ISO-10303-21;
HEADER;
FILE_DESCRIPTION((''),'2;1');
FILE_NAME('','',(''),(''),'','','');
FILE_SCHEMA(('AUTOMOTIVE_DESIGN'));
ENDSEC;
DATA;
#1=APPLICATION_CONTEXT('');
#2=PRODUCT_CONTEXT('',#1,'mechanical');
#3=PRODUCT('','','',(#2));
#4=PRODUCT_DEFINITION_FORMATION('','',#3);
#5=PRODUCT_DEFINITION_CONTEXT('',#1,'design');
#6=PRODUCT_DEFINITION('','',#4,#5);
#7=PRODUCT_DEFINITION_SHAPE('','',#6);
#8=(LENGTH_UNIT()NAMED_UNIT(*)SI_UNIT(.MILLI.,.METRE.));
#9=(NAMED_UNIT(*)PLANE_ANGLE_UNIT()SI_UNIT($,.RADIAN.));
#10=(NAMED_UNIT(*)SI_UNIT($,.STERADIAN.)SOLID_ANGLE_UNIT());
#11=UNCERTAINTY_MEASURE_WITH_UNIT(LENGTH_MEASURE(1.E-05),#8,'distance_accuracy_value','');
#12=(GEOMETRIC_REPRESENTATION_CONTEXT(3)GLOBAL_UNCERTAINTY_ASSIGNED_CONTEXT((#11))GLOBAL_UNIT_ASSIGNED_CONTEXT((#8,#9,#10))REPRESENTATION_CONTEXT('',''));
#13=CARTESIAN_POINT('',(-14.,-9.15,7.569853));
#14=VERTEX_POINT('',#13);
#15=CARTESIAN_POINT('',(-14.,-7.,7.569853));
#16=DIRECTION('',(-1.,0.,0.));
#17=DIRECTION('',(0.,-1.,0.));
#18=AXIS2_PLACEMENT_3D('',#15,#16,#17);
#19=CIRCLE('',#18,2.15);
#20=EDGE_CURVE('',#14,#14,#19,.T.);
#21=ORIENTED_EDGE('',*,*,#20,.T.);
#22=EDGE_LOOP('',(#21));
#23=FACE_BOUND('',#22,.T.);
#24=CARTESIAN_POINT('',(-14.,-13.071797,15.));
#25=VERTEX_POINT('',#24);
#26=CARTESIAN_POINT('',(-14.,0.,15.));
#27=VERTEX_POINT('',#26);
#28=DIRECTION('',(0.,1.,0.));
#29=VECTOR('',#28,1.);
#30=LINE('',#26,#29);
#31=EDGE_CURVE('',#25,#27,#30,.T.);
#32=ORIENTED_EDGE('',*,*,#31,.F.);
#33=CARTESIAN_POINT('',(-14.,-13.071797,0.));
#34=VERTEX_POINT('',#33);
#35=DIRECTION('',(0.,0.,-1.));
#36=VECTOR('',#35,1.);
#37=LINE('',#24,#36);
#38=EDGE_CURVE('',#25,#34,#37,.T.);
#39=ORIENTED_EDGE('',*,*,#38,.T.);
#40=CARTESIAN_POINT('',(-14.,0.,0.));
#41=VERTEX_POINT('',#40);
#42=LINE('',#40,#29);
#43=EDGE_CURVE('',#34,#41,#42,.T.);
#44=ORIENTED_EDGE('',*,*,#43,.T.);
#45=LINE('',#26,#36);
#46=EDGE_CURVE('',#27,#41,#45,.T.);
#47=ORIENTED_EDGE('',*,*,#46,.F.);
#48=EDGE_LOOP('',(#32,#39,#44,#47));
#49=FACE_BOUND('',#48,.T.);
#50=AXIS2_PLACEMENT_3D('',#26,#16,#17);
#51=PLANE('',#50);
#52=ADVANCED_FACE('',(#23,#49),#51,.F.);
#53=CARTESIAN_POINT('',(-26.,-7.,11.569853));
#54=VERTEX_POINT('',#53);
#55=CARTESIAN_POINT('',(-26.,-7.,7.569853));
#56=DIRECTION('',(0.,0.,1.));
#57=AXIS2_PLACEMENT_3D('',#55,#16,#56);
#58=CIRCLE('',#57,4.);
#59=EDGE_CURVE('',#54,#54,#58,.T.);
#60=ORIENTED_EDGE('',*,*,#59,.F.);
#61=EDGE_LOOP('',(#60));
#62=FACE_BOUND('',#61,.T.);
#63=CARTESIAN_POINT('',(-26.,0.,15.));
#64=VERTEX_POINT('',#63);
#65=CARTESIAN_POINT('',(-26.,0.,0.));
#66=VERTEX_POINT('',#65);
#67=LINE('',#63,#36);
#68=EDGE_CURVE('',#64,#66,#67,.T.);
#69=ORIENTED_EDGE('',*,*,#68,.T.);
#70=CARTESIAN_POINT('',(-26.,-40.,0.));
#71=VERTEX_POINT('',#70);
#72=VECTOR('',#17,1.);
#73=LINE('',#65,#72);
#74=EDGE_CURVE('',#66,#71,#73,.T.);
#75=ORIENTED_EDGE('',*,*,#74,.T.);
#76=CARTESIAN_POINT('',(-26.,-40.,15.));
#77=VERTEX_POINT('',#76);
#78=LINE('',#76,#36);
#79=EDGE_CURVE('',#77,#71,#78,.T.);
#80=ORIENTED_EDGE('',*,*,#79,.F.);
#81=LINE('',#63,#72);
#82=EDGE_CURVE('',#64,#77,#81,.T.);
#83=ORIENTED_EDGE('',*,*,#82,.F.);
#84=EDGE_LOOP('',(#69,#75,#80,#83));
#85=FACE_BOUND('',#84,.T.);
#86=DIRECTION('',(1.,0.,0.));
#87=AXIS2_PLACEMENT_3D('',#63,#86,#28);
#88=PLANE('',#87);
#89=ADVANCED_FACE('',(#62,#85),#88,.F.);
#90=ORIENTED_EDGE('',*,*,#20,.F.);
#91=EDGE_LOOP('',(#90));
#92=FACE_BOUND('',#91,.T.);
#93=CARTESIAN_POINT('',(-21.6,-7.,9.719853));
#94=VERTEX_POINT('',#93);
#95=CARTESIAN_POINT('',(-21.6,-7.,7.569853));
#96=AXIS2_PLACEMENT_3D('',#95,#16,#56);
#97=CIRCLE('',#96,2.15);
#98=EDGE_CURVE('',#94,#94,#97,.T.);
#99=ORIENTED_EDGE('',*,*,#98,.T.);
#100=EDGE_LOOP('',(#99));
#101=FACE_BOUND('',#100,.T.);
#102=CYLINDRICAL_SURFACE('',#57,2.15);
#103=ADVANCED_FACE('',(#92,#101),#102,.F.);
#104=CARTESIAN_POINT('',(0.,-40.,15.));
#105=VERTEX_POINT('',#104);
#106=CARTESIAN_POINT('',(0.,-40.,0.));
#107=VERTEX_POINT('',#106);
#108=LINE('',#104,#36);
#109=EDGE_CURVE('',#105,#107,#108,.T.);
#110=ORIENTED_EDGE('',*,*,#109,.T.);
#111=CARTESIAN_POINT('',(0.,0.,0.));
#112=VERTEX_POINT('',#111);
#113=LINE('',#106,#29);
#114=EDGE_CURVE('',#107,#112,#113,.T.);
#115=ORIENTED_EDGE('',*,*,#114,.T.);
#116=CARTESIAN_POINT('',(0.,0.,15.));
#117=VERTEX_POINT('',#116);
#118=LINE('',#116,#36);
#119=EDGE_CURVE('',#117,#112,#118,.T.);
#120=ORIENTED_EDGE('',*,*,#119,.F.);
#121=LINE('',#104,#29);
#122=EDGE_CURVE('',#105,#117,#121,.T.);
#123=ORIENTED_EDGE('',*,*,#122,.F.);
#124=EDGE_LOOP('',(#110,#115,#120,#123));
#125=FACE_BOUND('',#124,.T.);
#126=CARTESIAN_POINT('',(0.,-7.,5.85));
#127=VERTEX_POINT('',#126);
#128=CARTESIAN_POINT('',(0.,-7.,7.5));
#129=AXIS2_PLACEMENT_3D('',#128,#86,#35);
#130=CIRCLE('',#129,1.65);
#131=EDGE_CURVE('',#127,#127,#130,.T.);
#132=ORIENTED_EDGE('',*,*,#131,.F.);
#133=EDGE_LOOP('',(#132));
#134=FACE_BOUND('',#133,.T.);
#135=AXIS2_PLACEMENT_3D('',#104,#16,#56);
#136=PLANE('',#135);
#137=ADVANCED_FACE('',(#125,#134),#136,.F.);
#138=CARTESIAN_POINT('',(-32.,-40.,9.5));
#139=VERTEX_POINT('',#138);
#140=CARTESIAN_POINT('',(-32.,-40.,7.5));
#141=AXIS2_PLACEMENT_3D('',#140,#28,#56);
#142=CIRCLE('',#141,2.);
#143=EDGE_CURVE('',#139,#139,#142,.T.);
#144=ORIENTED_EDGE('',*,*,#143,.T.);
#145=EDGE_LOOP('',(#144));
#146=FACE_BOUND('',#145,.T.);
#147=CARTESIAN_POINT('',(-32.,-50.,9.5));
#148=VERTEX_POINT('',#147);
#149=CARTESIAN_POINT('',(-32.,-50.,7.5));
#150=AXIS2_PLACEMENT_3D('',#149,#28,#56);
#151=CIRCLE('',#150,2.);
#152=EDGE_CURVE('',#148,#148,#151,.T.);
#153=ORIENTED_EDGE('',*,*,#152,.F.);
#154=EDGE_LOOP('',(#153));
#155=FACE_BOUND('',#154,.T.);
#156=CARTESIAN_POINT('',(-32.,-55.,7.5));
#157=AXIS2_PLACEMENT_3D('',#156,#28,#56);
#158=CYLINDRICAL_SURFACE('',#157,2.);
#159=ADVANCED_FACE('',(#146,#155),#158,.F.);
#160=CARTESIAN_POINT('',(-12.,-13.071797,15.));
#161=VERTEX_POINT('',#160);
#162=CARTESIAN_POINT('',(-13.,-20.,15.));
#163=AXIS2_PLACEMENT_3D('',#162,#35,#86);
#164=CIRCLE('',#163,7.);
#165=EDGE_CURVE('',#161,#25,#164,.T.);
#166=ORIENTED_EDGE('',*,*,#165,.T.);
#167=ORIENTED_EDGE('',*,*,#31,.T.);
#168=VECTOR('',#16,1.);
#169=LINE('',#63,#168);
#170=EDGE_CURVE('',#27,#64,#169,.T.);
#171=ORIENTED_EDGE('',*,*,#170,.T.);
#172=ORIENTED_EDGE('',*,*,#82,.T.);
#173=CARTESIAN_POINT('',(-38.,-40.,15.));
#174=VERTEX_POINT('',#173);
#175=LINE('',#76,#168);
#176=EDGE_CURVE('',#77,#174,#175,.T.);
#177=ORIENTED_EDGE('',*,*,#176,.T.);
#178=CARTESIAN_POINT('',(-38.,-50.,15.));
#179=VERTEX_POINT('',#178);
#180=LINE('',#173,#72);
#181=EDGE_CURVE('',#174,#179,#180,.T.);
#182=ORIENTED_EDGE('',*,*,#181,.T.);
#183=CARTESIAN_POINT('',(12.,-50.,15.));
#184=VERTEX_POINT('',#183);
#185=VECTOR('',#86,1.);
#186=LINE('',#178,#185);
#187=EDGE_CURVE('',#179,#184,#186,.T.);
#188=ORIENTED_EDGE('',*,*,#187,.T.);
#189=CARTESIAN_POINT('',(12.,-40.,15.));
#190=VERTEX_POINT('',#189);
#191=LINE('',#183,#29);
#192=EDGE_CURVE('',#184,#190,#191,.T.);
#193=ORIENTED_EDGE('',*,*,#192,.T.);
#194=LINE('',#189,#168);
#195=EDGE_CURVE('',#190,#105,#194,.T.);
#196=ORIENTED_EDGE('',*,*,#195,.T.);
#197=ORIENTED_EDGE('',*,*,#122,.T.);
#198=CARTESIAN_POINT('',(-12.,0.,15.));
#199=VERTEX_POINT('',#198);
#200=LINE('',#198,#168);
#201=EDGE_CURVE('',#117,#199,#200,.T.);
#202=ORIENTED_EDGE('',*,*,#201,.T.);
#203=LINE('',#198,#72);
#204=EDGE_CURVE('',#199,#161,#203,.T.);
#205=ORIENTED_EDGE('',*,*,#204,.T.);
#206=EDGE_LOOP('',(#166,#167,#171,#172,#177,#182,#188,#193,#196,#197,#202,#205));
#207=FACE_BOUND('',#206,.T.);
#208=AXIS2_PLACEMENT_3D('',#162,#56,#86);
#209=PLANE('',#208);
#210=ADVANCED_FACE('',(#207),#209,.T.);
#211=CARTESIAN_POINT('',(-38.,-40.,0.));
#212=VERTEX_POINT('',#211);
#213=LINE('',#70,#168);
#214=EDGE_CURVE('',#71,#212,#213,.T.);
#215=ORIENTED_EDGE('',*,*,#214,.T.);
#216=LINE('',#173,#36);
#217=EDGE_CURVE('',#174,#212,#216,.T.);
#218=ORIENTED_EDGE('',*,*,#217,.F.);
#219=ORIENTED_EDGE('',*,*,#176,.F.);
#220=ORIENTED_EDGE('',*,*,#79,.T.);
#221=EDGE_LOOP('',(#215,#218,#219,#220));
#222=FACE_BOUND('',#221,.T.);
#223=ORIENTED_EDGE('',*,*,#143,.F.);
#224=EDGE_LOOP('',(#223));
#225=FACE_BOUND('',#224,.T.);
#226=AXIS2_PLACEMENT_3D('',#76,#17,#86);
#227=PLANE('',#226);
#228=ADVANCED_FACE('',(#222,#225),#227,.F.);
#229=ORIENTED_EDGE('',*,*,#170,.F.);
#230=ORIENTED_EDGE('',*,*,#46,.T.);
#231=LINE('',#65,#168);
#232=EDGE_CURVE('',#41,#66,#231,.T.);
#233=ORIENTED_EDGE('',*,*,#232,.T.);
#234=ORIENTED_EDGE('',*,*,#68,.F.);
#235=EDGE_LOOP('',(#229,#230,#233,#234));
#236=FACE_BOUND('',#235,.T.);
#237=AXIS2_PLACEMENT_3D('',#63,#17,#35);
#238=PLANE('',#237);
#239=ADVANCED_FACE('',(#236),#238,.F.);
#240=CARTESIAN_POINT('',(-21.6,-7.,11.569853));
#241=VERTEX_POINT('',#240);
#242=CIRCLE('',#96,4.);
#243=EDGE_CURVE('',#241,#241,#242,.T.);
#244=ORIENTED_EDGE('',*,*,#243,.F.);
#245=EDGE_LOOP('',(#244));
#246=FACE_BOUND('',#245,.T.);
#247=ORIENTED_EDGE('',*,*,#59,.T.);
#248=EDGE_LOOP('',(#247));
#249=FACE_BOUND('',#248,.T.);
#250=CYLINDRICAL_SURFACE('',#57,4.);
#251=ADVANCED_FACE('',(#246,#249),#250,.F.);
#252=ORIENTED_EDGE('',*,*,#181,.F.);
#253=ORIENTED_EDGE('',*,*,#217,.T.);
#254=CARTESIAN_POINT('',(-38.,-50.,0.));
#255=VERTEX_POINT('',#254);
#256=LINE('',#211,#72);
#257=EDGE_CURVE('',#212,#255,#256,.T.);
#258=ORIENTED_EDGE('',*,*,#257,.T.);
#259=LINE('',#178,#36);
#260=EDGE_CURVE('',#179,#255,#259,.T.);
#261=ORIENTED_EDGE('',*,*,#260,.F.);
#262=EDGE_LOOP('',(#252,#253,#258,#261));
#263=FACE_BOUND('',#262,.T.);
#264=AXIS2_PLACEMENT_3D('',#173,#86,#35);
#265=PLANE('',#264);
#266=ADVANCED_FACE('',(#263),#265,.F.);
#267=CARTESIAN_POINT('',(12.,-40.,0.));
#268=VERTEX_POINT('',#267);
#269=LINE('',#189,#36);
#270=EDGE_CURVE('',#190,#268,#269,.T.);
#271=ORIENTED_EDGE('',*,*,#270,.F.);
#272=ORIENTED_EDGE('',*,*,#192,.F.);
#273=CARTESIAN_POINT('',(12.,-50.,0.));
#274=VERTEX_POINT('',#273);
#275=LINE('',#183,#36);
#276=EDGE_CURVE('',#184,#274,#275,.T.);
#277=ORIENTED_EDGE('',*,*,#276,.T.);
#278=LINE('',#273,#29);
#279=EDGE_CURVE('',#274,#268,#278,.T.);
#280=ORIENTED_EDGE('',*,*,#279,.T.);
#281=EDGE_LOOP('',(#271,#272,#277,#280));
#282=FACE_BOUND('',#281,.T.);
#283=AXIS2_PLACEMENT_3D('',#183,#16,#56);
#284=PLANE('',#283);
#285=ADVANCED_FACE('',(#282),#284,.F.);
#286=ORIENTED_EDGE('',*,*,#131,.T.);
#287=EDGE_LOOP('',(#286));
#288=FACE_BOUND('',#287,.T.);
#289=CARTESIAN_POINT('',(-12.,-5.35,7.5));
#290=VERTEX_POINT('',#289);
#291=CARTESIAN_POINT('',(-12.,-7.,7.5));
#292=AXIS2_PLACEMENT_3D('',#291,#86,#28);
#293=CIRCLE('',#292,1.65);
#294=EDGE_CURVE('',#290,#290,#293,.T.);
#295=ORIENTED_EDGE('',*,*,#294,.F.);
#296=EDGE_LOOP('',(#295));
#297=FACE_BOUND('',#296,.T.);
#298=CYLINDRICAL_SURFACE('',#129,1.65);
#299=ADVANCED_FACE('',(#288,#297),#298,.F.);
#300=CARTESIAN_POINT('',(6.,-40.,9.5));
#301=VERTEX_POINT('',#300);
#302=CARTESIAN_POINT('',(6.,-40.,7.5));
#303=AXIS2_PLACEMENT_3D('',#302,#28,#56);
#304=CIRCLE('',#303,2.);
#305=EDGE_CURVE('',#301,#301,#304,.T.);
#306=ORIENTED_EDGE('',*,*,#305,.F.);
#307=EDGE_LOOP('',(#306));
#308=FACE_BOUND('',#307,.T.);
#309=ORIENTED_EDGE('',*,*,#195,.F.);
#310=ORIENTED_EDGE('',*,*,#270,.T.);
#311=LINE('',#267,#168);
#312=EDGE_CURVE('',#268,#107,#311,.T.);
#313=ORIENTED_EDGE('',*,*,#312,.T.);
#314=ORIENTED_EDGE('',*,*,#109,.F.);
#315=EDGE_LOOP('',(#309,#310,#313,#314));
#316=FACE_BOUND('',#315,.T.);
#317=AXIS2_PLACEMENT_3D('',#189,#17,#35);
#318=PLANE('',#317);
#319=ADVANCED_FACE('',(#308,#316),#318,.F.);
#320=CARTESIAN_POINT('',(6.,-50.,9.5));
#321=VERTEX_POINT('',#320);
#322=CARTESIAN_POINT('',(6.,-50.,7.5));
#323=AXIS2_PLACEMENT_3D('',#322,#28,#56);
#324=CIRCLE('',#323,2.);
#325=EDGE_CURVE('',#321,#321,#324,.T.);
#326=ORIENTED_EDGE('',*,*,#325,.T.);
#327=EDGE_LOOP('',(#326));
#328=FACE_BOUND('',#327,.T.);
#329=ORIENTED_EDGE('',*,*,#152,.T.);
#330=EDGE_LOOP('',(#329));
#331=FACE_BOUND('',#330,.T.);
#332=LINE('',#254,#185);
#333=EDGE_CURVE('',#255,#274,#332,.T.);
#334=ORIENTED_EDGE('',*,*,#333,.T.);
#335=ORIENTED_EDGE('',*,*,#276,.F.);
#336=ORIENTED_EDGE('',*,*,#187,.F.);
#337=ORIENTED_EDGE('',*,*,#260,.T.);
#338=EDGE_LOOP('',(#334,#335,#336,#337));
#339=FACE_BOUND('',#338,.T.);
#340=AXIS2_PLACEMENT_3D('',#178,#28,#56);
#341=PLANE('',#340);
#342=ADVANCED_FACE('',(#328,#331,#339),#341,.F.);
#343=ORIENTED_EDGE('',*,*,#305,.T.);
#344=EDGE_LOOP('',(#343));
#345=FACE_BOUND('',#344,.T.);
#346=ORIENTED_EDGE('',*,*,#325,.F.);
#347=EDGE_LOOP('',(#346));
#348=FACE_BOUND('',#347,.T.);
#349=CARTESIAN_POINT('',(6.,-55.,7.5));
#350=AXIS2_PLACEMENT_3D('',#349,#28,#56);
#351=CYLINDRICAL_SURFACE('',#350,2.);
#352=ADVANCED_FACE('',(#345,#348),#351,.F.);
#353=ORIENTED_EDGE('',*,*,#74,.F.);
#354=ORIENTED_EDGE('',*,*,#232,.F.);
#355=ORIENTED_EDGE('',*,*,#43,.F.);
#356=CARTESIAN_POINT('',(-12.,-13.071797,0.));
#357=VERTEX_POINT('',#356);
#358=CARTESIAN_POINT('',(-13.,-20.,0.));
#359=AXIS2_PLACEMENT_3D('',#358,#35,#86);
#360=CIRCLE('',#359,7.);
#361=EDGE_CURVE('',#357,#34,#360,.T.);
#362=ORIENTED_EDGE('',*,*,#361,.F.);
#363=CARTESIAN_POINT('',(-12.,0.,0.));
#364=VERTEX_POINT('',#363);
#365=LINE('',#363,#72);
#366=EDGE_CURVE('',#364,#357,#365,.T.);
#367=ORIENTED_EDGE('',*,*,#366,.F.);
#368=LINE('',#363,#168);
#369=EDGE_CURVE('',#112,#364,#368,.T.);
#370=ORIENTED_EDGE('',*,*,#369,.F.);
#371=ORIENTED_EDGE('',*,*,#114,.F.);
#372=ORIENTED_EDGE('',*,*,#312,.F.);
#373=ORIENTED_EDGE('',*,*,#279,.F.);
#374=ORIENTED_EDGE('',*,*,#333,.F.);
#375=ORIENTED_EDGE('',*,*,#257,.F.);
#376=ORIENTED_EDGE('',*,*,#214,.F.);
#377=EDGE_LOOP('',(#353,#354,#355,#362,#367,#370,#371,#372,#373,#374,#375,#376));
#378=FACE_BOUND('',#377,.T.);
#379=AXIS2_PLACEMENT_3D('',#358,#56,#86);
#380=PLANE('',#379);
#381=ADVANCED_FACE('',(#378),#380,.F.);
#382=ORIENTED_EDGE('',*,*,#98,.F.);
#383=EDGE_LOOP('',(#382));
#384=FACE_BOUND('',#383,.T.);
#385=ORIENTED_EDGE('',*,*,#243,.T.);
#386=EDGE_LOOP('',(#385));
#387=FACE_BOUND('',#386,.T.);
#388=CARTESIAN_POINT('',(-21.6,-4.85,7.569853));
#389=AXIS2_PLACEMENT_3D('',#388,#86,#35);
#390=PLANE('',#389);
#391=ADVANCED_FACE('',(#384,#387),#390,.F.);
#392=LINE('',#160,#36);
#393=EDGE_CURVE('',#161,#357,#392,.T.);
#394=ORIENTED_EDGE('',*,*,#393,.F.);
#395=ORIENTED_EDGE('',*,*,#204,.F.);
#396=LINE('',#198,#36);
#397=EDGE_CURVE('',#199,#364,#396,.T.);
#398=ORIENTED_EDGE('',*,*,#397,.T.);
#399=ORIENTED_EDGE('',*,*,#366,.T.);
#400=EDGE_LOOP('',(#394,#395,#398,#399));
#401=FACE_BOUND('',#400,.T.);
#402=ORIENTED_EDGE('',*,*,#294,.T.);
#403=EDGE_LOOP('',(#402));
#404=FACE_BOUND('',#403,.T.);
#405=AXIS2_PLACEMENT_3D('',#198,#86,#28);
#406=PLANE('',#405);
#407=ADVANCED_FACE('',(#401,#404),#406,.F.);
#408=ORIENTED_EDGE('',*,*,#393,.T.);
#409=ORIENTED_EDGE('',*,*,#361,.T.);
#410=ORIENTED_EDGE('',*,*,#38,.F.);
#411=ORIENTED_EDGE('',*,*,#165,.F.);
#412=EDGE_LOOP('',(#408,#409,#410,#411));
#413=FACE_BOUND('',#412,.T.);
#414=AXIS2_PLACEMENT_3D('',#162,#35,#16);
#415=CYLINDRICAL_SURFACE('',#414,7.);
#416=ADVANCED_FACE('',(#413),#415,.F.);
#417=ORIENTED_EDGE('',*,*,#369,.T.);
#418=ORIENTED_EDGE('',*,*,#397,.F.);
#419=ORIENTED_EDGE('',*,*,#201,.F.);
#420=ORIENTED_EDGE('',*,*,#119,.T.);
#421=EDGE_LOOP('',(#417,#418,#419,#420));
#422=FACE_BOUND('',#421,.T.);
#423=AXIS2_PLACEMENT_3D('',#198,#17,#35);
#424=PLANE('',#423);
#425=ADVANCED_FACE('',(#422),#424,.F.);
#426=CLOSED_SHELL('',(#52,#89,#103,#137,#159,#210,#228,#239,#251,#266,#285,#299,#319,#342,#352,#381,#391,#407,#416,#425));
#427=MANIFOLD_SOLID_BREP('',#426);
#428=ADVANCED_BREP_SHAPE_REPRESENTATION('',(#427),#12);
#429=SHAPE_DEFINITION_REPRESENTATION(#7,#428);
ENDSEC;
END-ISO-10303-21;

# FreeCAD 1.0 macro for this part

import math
import FreeCAD as App
import Part
import Sketcher

V = App.Vector

doc = App.newDocument("Part")
body = doc.addObject("PartDesign::Body", "Body")

# Sketch on XY plane
sketch1 = body.newObject("Sketcher::SketchObject", "Sketch")
sketch1.AttachmentSupport = (doc.getObject("XY_Plane"), [""])
sketch1.MapMode = "FlatFace"
sketch1.addGeometry(Part.LineSegment(V(-26, 0, 0), V(-26, -40, 0)), False)
sketch1.addGeometry(Part.LineSegment(V(-26, -40, 0), V(-38, -40, 0)), False)
sketch1.addGeometry(Part.LineSegment(V(-38, -40, 0), V(-38, -50, 0)), False)
sketch1.addGeometry(Part.LineSegment(V(-38, -50, 0), V(12, -50, 0)), False)
sketch1.addGeometry(Part.LineSegment(V(12, -50, 0), V(12, -40, 0)), False)
sketch1.addGeometry(Part.LineSegment(V(12, -40, 0), V(0, -40, 0)), False)
sketch1.addGeometry(Part.LineSegment(V(0, -40, 0), V(0, 0, 0)), False)
sketch1.addGeometry(Part.LineSegment(V(0, 0, 0), V(-12, 0, 0)), False)
sketch1.addGeometry(Part.LineSegment(V(-12, 0, 0), V(-12, -13.071797, 0)), False)
sketch1.addGeometry(Part.ArcOfCircle(Part.Circle(V(-13, -20, 0), V(0, 0, 1), 7), math.radians(98.213211), math.radians(441.786789)), False)
sketch1.addGeometry(Part.LineSegment(V(-14, -13.071797, 0), V(-14, 0, 0)), False)
sketch1.addGeometry(Part.LineSegment(V(-14, 0, 0), V(-26, 0, 0)), False)
sketch1.addConstraint(Sketcher.Constraint("Coincident", 0, 2, 1, 1))
sketch1.addConstraint(Sketcher.Constraint("Coincident", 1, 2, 2, 1))
sketch1.addConstraint(Sketcher.Constraint("Coincident", 2, 2, 3, 1))
sketch1.addConstraint(Sketcher.Constraint("Coincident", 3, 2, 4, 1))
sketch1.addConstraint(Sketcher.Constraint("Coincident", 4, 2, 5, 1))
sketch1.addConstraint(Sketcher.Constraint("Coincident", 5, 2, 6, 1))
sketch1.addConstraint(Sketcher.Constraint("Coincident", 6, 2, 7, 1))
sketch1.addConstraint(Sketcher.Constraint("Coincident", 7, 2, 8, 1))
sketch1.addConstraint(Sketcher.Constraint("Coincident", 8, 2, 9, 2))
sketch1.addConstraint(Sketcher.Constraint("Coincident", 9, 1, 10, 1))
sketch1.addConstraint(Sketcher.Constraint("Coincident", 10, 2, 11, 1))
sketch1.addConstraint(Sketcher.Constraint("Coincident", 11, 2, 0, 1))
sketch1.addConstraint(Sketcher.Constraint("Vertical", 0))
sketch1.addConstraint(Sketcher.Constraint("Horizontal", 1))
sketch1.addConstraint(Sketcher.Constraint("Vertical", 2))
sketch1.addConstraint(Sketcher.Constraint("Horizontal", 3))
sketch1.addConstraint(Sketcher.Constraint("Vertical", 4))
sketch1.addConstraint(Sketcher.Constraint("Horizontal", 5))
sketch1.addConstraint(Sketcher.Constraint("Vertical", 6))
sketch1.addConstraint(Sketcher.Constraint("Horizontal", 7))
sketch1.addConstraint(Sketcher.Constraint("Vertical", 8))
sketch1.addConstraint(Sketcher.Constraint("Vertical", 10))
sketch1.addConstraint(Sketcher.Constraint("Horizontal", 11))
sketch1.addConstraint(Sketcher.Constraint("Coincident", 6, 2, -1, 1))
sketch1.addConstraint(Sketcher.Constraint("PointOnObject", 10, 2, -1))
sketch1.addConstraint(Sketcher.Constraint("Horizontal", 1, 2, 4, 2))
sketch1.addConstraint(Sketcher.Constraint("Horizontal", 8, 2, 9, 1))
sketch1.addConstraint(Sketcher.Constraint("Equal", 1, 5))
sketch1.addConstraint(Sketcher.Constraint("Equal", 5, 7))
sketch1.addConstraint(Sketcher.Constraint("Equal", 7, 11))
sketch1.addConstraint(Sketcher.Constraint("Radius", 9, 7.0))
sketch1.addConstraint(Sketcher.Constraint("DistanceX", 1, 2, 1, 1, 12.0))
sketch1.addConstraint(Sketcher.Constraint("DistanceX", 3, 1, 3, 2, 50.0))
sketch1.addConstraint(Sketcher.Constraint("DistanceY", 0, 2, 0, 1, 40.0))
sketch1.addConstraint(Sketcher.Constraint("DistanceY", 2, 2, 2, 1, 10.0))
sketch1.addConstraint(Sketcher.Constraint("DistanceY", 9, 3, -1, 1, 20.0))
pad1 = body.newObject("PartDesign::Pad", "Pad")
pad1.Profile = sketch1
pad1.Length = 15

# Sketch on XZ plane
sketch2 = body.newObject("Sketcher::SketchObject", "Sketch001")
sketch2.AttachmentSupport = (doc.getObject("XZ_Plane"), [""])
sketch2.MapMode = "FlatFace"
sketch2.AttachmentOffset = App.Placement(V(0, 0, 40), App.Rotation())
sketch2.addGeometry(Part.Circle(V(6, 7.5, 0), V(0, 0, 1), 2), False)
sketch2.addGeometry(Part.Circle(V(-32, 7.5, 0), V(0, 0, 1), 2), False)
sketch2.addConstraint(Sketcher.Constraint("Equal", 0, 1))
sketch2.addConstraint(Sketcher.Constraint("Horizontal", 0, 3, 1, 3))
sketch2.addConstraint(Sketcher.Constraint("Diameter", 0, 4.0))
sketch2.addConstraint(Sketcher.Constraint("DistanceX", -1, 1, 0, 3, 6.0))
sketch2.addConstraint(Sketcher.Constraint("DistanceX", 1, 3, -1, 1, 32.0))
sketch2.addConstraint(Sketcher.Constraint("DistanceY", -1, 1, 0, 3, 7.5))
pocket1 = body.newObject("PartDesign::Pocket", "Pocket")
pocket1.Profile = sketch2
pocket1.Length = 15
pocket1.Reversed = True

# Sketch on YZ plane
sketch3 = body.newObject("Sketcher::SketchObject", "Sketch002")
sketch3.AttachmentSupport = (doc.getObject("YZ_Plane"), [""])
sketch3.MapMode = "FlatFace"
sketch3.AttachmentOffset = App.Placement(V(0, 0, -26), App.Rotation())
sketch3.addGeometry(Part.Circle(V(-7, 7.569853, 0), V(0, 0, 1), 2.15), False)
sketch3.addConstraint(Sketcher.Constraint("Diameter", 0, 4.3))
sketch3.addConstraint(Sketcher.Constraint("DistanceX", 0, 3, -1, 1, 7.0))
sketch3.addConstraint(Sketcher.Constraint("DistanceY", -1, 1, 0, 3, 7.569853))
doc.recompute()
hole = body.newObject("PartDesign::Hole", "Hole")
hole.Profile = sketch3
hole.ThreadType = "None"
hole.Diameter = 4.3
hole.DepthType = "Dimension"
hole.Depth = 12
hole.DrillPoint = "Flat"
hole.HoleCutType = "Counterbore"
hole.HoleCutDiameter = 8
hole.HoleCutDepth = 4.4
hole.Reversed = True

# Sketch on YZ plane
sketch4 = body.newObject("Sketcher::SketchObject", "Sketch003")
sketch4.AttachmentSupport = (doc.getObject("YZ_Plane"), [""])
sketch4.MapMode = "FlatFace"
sketch4.addGeometry(Part.Circle(V(-7, 7.5, 0), V(0, 0, 1), 1.65), False)
sketch4.addConstraint(Sketcher.Constraint("Diameter", 0, 3.3))
sketch4.addConstraint(Sketcher.Constraint("DistanceX", 0, 3, -1, 1, 7.0))
sketch4.addConstraint(Sketcher.Constraint("DistanceY", -1, 1, 0, 3, 7.5))
doc.recompute()
hole2 = body.newObject("PartDesign::Hole", "Hole001")
hole2.Profile = sketch4
hole2.ThreadType = "None"
hole2.Diameter = 3.3
hole2.DepthType = "ThroughAll"

doc.recompute()
